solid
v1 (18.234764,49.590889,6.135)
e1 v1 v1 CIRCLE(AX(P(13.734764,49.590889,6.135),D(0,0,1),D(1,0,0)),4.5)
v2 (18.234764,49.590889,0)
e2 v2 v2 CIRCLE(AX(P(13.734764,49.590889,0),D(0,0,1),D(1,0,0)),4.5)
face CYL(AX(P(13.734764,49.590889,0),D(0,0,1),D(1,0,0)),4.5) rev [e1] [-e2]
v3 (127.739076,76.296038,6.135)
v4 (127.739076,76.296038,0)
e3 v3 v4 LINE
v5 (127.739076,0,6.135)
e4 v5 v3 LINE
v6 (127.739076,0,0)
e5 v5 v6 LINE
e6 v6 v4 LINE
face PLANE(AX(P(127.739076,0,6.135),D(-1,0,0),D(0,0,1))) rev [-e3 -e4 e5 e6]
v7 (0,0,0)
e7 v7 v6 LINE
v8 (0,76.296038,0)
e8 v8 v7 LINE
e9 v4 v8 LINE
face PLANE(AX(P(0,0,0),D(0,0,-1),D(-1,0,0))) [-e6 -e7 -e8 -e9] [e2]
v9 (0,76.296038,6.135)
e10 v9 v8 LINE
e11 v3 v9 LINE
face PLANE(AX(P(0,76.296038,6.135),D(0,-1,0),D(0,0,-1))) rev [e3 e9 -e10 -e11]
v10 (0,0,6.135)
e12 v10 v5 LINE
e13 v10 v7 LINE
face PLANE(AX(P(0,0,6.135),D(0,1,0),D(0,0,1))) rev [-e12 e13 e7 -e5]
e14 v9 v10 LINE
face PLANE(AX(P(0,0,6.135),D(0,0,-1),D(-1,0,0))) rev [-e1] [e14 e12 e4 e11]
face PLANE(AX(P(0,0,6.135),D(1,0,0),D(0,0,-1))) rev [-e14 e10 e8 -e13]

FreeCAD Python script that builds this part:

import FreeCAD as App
import Part
import Sketcher

V = App.Vector
Q = App.Units.Quantity

doc = App.newDocument("Part")
params = doc.addObject("Spreadsheet::Sheet", "Params")
for row, (alias, value) in enumerate([
    ("pad1_length", "6.135 mm"),
    ("sketch2_diameter", "9 mm"),
], start=1):
    params.set(f"A{row}", alias)
    params.set(f"B{row}", "=" + value)
    params.setAlias(f"B{row}", alias)

body = doc.addObject("PartDesign::Body", "Body")

# Sketch on XY plane
sketch1 = body.newObject("Sketcher::SketchObject", "Sketch")
sketch1.AttachmentSupport = (doc.getObject("XY_Plane"), [""])
sketch1.MapMode = "FlatFace"
sketch1.addGeometry([
    Part.LineSegment(V(0, 76, 0), V(0, 0, 0)),
    Part.LineSegment(V(0, 0, 0), V(128, 0, 0)),
    Part.LineSegment(V(128, 0, 0), V(128, 76, 0)),
    Part.LineSegment(V(128, 76, 0), V(0, 76, 0)),
], False)
sketch1.addConstraint([
    Sketcher.Constraint("Coincident", 0, 2, 1, 1),
    Sketcher.Constraint("Coincident", 1, 2, 2, 1),
    Sketcher.Constraint("Coincident", 2, 2, 3, 1),
    Sketcher.Constraint("Coincident", 3, 2, 0, 1),
    Sketcher.Constraint("Vertical", 0),
    Sketcher.Constraint("Horizontal", 1),
    Sketcher.Constraint("Vertical", 2),
    Sketcher.Constraint("Horizontal", 3),
    Sketcher.Constraint("Coincident", 0, 2, -1, 1),
    Sketcher.Constraint("DistanceY", 0, 2, 0, 1, Q("76.296038 mm")),
    Sketcher.Constraint("DistanceX", 1, 1, 1, 2, Q("127.739076 mm")),
])
pad1 = body.newObject("PartDesign::Pad", "Pad")
pad1.Profile = sketch1
pad1.setExpression("Length", "Params.pad1_length")

# Sketch on XY plane
sketch2 = body.newObject("Sketcher::SketchObject", "Sketch001")
sketch2.AttachmentSupport = (doc.getObject("XY_Plane"), [""])
sketch2.MapMode = "FlatFace"
sketch2.AttachmentOffset = App.Placement(V(0, 0, 6.135), App.Rotation())
sketch2.addGeometry(Part.Circle(V(13.7, 49.6, 0), V(0, 0, 1), 4.5), False)
sketch2.addConstraint([
    Sketcher.Constraint("Diameter", 0, Q("9 mm")),
    Sketcher.Constraint("DistanceY", -1, 1, 0, 3, Q("49.590889 mm")),
    Sketcher.Constraint("DistanceX", -1, 1, 0, 3, Q("13.734764 mm")),
])
sketch2.setExpression("Constraints[0]", "Params.sketch2_diameter")
pocket1 = body.newObject("PartDesign::Pocket", "Pocket")
pocket1.Profile = sketch2
pocket1.Type = "ThroughAll"

doc.recompute()
